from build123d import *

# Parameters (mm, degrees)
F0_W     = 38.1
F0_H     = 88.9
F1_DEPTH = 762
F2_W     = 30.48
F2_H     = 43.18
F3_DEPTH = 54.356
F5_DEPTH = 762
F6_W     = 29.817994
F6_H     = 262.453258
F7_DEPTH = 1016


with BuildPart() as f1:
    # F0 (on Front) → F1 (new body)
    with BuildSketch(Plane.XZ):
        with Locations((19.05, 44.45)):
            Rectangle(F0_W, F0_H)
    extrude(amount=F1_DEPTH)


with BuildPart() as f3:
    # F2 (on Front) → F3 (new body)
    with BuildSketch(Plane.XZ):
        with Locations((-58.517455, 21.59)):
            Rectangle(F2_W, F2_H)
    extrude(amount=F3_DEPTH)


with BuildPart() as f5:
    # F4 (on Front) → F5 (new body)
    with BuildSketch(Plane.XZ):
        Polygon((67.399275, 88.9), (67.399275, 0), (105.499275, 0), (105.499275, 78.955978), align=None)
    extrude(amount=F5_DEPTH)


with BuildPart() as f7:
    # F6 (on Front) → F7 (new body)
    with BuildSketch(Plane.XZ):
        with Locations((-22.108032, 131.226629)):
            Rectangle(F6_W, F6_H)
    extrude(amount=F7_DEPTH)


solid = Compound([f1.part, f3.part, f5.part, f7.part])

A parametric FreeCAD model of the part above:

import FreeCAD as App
import Part
import Sketcher

V = App.Vector
Q = App.Units.Quantity


def add_polygon(sketch, points):
    """Adds a closed chain of lines whose ends are joined by coincident constraints."""
    first, n = sketch.GeometryCount, len(points)
    for a, b in zip(points, points[1:] + points[:1]):
        sketch.addGeometry(Part.LineSegment(App.Vector(*a, 0), App.Vector(*b, 0)), False)
    for i in range(n):
        sketch.addConstraint(Sketcher.Constraint("Coincident", first + i, 2, first + (i + 1) % n, 1))

doc = App.newDocument("Part")
body = doc.addObject("PartDesign::Body", "Body")

# Sketch on XZ plane
sketch1 = body.newObject("Sketcher::SketchObject", "Sketch")
sketch1.AttachmentSupport = (doc.getObject("XZ_Plane"), [""])
sketch1.MapMode = "FlatFace"
add_polygon(sketch1, [(0, 88.9), (0, 0), (38.1, 0), (38.1, 88.9)])  # lines 0-3
sketch1.addConstraint([
    Sketcher.Constraint("Vertical", 0),
    Sketcher.Constraint("Horizontal", 1),
    Sketcher.Constraint("Vertical", 2),
    Sketcher.Constraint("Horizontal", 3),
    Sketcher.Constraint("Coincident", 0, 2, -1, 1),
    Sketcher.Constraint("DistanceX", 1, 1, 1, 2, Q("1.5 in")),
    Sketcher.Constraint("DistanceY", 0, 2, 0, 1, Q("3.5 in")),
])
pad1 = body.newObject("PartDesign::Pad", "Pad")
pad1.Profile = sketch1
pad1.Length = Q("30 in")
body2 = doc.addObject("PartDesign::Body", "Body001")

# Sketch on XZ plane
sketch2 = body2.newObject("Sketcher::SketchObject", "Sketch001")
sketch2.AttachmentSupport = (doc.getObject("XZ_Plane001"), [""])
sketch2.MapMode = "FlatFace"
add_polygon(sketch2, [(-73.757455, 43.18), (-73.757455, 0), (-43.277455, 0), (-43.277455, 43.18)])  # lines 0-3
sketch2.addConstraint([
    Sketcher.Constraint("Vertical", 0),
    Sketcher.Constraint("Horizontal", 1),
    Sketcher.Constraint("Vertical", 2),
    Sketcher.Constraint("Horizontal", 3),
    Sketcher.Constraint("PointOnObject", 0, 2, -1),
    Sketcher.Constraint("DistanceX", 1, 1, 1, 2, Q("1.2 in")),
    Sketcher.Constraint("DistanceY", 0, 2, 0, 1, Q("1.7 in")),
    Sketcher.Constraint("DistanceX", 0, 2, -1, 1, 73.757455),
])
pad2 = body2.newObject("PartDesign::Pad", "Pad001")
pad2.Profile = sketch2
pad2.Length = Q("2.14 in")
body3 = doc.addObject("PartDesign::Body", "Body002")

# Sketch on XZ plane
sketch3 = body3.newObject("Sketcher::SketchObject", "Sketch002")
sketch3.AttachmentSupport = (doc.getObject("XZ_Plane002"), [""])
sketch3.MapMode = "FlatFace"
add_polygon(sketch3, [(67.399275, 88.9), (67.399275, 0), (105.499275, 0), (105.499275, 78.955978)])  # lines 0-3
sketch3.addConstraint([
    Sketcher.Constraint("Vertical", 0),
    Sketcher.Constraint("Horizontal", 1),
    Sketcher.Constraint("Vertical", 2),
    Sketcher.Constraint("PointOnObject", 0, 2, -1),
    Sketcher.Constraint("DistanceX", 1, 1, 1, 2, Q("1.5 in")),
    Sketcher.Constraint("DistanceY", 0, 2, 0, 1, Q("3.5 in")),
    Sketcher.Constraint("DistanceY", 2, 1, 2, 2, 78.955978),
    Sketcher.Constraint("DistanceX", -1, 1, 0, 2, 67.399275),
])
pad3 = body3.newObject("PartDesign::Pad", "Pad002")
pad3.Profile = sketch3
pad3.Length = Q("30 in")
body4 = doc.addObject("PartDesign::Body", "Body003")

# Sketch on XZ plane
sketch4 = body4.newObject("Sketcher::SketchObject", "Sketch003")
sketch4.AttachmentSupport = (doc.getObject("XZ_Plane003"), [""])
sketch4.MapMode = "FlatFace"
add_polygon(sketch4, [(-37.017029, 262.453258), (-37.017029, 0), (-7.199035, 0), (-7.199035, 262.453258)])  # lines 0-3
sketch4.addConstraint([
    Sketcher.Constraint("Vertical", 0),
    Sketcher.Constraint("Horizontal", 1),
    Sketcher.Constraint("Vertical", 2),
    Sketcher.Constraint("Horizontal", 3),
    Sketcher.Constraint("PointOnObject", 0, 2, -1),
    Sketcher.Constraint("DistanceY", 0, 2, 0, 1, 262.453258),
    Sketcher.Constraint("DistanceX", 1, 1, 1, 2, 29.817994),
    Sketcher.Constraint("DistanceX", 0, 2, -1, 1, 37.017029),
])
pad4 = body4.newObject("PartDesign::Pad", "Pad003")
pad4.Profile = sketch4
pad4.Length = Q("40 in")

doc.recompute()
